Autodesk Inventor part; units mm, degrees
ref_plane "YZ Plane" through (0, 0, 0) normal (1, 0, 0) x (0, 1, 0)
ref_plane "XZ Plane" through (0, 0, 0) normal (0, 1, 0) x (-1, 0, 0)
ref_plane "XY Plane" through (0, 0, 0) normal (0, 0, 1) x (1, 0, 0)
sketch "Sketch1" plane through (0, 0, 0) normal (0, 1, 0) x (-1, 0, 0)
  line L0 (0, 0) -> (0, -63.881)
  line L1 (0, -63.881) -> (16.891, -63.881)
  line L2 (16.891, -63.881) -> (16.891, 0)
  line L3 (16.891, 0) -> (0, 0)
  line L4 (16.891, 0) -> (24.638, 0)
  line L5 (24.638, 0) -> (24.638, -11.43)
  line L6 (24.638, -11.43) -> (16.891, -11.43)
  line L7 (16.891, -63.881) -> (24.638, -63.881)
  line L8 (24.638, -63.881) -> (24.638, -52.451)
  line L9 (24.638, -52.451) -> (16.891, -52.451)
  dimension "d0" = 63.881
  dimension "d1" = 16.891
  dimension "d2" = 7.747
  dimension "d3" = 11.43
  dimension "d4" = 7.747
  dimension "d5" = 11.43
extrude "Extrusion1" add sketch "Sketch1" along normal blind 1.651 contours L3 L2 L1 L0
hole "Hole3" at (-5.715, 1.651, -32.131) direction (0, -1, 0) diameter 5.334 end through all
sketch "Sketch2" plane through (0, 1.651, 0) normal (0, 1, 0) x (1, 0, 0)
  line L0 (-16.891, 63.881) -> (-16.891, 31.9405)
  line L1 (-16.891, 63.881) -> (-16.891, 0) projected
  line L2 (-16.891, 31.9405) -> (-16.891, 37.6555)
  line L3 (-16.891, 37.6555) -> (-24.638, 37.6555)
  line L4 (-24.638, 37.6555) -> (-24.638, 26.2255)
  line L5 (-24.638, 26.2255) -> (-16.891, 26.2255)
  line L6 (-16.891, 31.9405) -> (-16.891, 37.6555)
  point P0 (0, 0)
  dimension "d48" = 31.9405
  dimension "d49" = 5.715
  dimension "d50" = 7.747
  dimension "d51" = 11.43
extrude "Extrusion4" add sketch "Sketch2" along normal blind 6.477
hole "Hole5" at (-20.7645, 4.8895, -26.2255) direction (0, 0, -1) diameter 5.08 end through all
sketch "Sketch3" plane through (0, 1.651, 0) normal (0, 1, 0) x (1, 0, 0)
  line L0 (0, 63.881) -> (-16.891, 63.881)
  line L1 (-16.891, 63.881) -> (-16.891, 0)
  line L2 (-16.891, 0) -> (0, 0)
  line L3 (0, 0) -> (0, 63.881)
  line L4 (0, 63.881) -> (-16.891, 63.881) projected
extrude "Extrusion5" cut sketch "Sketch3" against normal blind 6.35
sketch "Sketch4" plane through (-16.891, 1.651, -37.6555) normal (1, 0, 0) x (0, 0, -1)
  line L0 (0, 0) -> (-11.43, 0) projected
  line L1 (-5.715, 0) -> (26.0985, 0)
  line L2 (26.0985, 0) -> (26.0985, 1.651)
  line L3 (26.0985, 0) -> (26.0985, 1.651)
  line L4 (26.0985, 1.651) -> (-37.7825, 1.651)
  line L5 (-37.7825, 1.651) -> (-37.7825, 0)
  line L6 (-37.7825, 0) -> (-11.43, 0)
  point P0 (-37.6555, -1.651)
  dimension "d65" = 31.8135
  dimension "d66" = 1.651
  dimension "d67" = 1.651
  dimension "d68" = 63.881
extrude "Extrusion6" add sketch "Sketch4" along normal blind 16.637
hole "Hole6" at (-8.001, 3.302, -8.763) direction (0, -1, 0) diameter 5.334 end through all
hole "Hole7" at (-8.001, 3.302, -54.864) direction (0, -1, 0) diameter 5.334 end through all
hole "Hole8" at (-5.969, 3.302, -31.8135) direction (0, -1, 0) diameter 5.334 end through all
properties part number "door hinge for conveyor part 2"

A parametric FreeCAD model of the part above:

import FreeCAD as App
import Part
import Sketcher

V = App.Vector
Q = App.Units.Quantity

doc = App.newDocument("Part")
body = doc.addObject("PartDesign::Body", "Body")
body.AllowCompound = True

# Sketch on XZ plane
sketch1 = doc.addObject("Sketcher::SketchObject", "Sketch")
body.addObject(sketch1)
sketch1.AttachmentSupport = (doc.XZ_Plane, [""])
sketch1.MapMode = "FlatFace"
sketch1.addGeometry([
    Part.LineSegment(V(-17, 0, 0), V(0, 0, 0)),
    Part.LineSegment(V(0, 0, 0), V(0, -64, 0)),
    Part.LineSegment(V(0, -64, 0), V(-17, -64, 0)),
    Part.LineSegment(V(-17, -64, 0), V(-17, 0, 0)),
], False)
sketch1.addConstraint([
    Sketcher.Constraint("Coincident", 0, 2, 1, 1),
    Sketcher.Constraint("Coincident", 1, 2, 2, 1),
    Sketcher.Constraint("Coincident", 2, 2, 3, 1),
    Sketcher.Constraint("Coincident", 3, 2, 0, 1),
    Sketcher.Constraint("Horizontal", 0),
    Sketcher.Constraint("Vertical", 1),
    Sketcher.Constraint("Horizontal", 2),
    Sketcher.Constraint("Vertical", 3),
    Sketcher.Constraint("Coincident", 0, 2, -1, 1),
    Sketcher.Constraint("DistanceX", 0, 1, 0, 2, Q("0.665 in")),
    Sketcher.Constraint("DistanceY", 1, 2, 1, 1, Q("2.515 in")),
])
pad1 = doc.addObject("PartDesign::Pad", "Pad")
body.addObject(pad1)
pad1.Profile = sketch1
pad1.Length = Q("0.065 in")
pad1.Reversed = True

# Sketch on XZ plane
sketch2 = doc.addObject("Sketcher::SketchObject", "Sketch001")
body.addObject(sketch2)
sketch2.AttachmentSupport = (doc.XZ_Plane, [""])
sketch2.MapMode = "FlatFace"
sketch2.AttachmentOffset = App.Placement(V(0, 0, -0.065 * 25.4), App.Rotation())
sketch2.addGeometry(Part.Circle(V(-5.7, -32.1, 0), V(0, 0, 1), 2.7), False)
sketch2.addConstraint([
    Sketcher.Constraint("Diameter", 0, Q("0.21 in")),
    Sketcher.Constraint("DistanceX", 0, 3, -1, 1, Q("0.225 in")),
    Sketcher.Constraint("DistanceY", 0, 3, -1, 1, Q("1.265 in")),
])
doc.recompute()
hole = doc.addObject("PartDesign::Hole", "Hole")
body.addObject(hole)
hole.Profile = sketch2
hole.ThreadType = "None"
hole.Diameter = Q("0.21 in")
hole.DepthType = "ThroughAll"
hole.Reversed = True

# Sketch on XZ plane
sketch3 = doc.addObject("Sketcher::SketchObject", "Sketch002")
body.addObject(sketch3)
sketch3.AttachmentSupport = (doc.XZ_Plane, [""])
sketch3.MapMode = "FlatFace"
sketch3.AttachmentOffset = App.Placement(V(0, 0, -0.065 * 25.4), App.Rotation())
sketch3.addGeometry([
    Part.LineSegment(V(-17, -26, 0), V(-17, -38, 0)),
    Part.LineSegment(V(-17, -38, 0), V(-25, -38, 0)),
    Part.LineSegment(V(-25, -38, 0), V(-25, -26, 0)),
    Part.LineSegment(V(-25, -26, 0), V(-17, -26, 0)),
], False)
sketch3.addConstraint([
    Sketcher.Constraint("Coincident", 0, 2, 1, 1),
    Sketcher.Constraint("Coincident", 1, 2, 2, 1),
    Sketcher.Constraint("Coincident", 2, 2, 3, 1),
    Sketcher.Constraint("Coincident", 3, 2, 0, 1),
    Sketcher.Constraint("Vertical", 0),
    Sketcher.Constraint("Horizontal", 1),
    Sketcher.Constraint("Vertical", 2),
    Sketcher.Constraint("Horizontal", 3),
    Sketcher.Constraint("DistanceY", 0, 2, 0, 1, Q("0.45 in")),
    Sketcher.Constraint("DistanceX", 1, 2, 1, 1, Q("0.305 in")),
    Sketcher.Constraint("DistanceX", 1, 2, -1, 1, Q("0.97 in")),
    Sketcher.Constraint("DistanceY", 0, 2, -1, 1, Q("1.4825 in")),
])
pad2 = doc.addObject("PartDesign::Pad", "Pad001")
body.addObject(pad2)
pad2.Profile = sketch3
pad2.Length = Q("0.255 in")
pad2.Reversed = True

# Sketch on XY plane
sketch4 = doc.addObject("Sketcher::SketchObject", "Sketch003")
body.addObject(sketch4)
sketch4.AttachmentSupport = (doc.XY_Plane, [""])
sketch4.MapMode = "FlatFace"
sketch4.AttachmentOffset = App.Placement(V(0, 0, -1.0325 * 25.4), App.Rotation())
sketch4.addGeometry(Part.Circle(V(-20.8, 4.9, 0), V(0, 0, 1), 2.5), False)
sketch4.addConstraint([
    Sketcher.Constraint("Diameter", 0, Q("0.2 in")),
    Sketcher.Constraint("DistanceX", 0, 3, -1, 1, Q("0.8175 in")),
    Sketcher.Constraint("DistanceY", -1, 1, 0, 3, Q("0.1925 in")),
])
doc.recompute()
hole2 = doc.addObject("PartDesign::Hole", "Hole001")
body.addObject(hole2)
hole2.Profile = sketch4
hole2.ThreadType = "None"
hole2.Diameter = Q("0.2 in")
hole2.DepthType = "ThroughAll"

# Sketch on XZ plane
sketch5 = doc.addObject("Sketcher::SketchObject", "Sketch004")
body.addObject(sketch5)
sketch5.AttachmentSupport = (doc.XZ_Plane, [""])
sketch5.MapMode = "FlatFace"
sketch5.AttachmentOffset = App.Placement(V(0, 0, -0.065 * 25.4), App.Rotation())
sketch5.addGeometry([
    Part.LineSegment(V(0, 0, 0), V(0, -64, 0)),
    Part.LineSegment(V(0, -64, 0), V(-17, -64, 0)),
    Part.LineSegment(V(-17, -64, 0), V(-17, 0, 0)),
    Part.LineSegment(V(-17, 0, 0), V(0, 0, 0)),
], False)
sketch5.addConstraint([
    Sketcher.Constraint("Coincident", 0, 2, 1, 1),
    Sketcher.Constraint("Coincident", 1, 2, 2, 1),
    Sketcher.Constraint("Coincident", 2, 2, 3, 1),
    Sketcher.Constraint("Coincident", 3, 2, 0, 1),
    Sketcher.Constraint("Vertical", 0),
    Sketcher.Constraint("Horizontal", 1),
    Sketcher.Constraint("Vertical", 2),
    Sketcher.Constraint("Horizontal", 3),
    Sketcher.Constraint("Coincident", 3, 2, -1, 1),
    Sketcher.Constraint("DistanceX", 1, 2, 1, 1, Q("0.665 in")),
    Sketcher.Constraint("DistanceY", 0, 2, 0, 1, Q("2.515 in")),
])
pocket1 = doc.addObject("PartDesign::Pocket", "Pocket")
body.addObject(pocket1)
pocket1.Profile = sketch5
pocket1.Length = Q("0.25 in")
pocket1.Reversed = True

# Sketch on YZ plane
sketch6 = doc.addObject("Sketcher::SketchObject", "Sketch005")
body.addObject(sketch6)
sketch6.AttachmentSupport = (doc.YZ_Plane, [""])
sketch6.MapMode = "FlatFace"
sketch6.AttachmentOffset = App.Placement(V(0, 0, -0.665 * 25.4), App.Rotation())
sketch6.addGeometry([
    Part.LineSegment(V(1.7, 0.1, 0), V(1.7, -63.8, 0)),
    Part.LineSegment(V(1.7, -63.8, 0), V(3.3, -63.8, 0)),
    Part.LineSegment(V(3.3, -63.8, 0), V(3.3, 0.1, 0)),
    Part.LineSegment(V(3.3, 0.1, 0), V(1.7, 0.1, 0)),
], False)
sketch6.addConstraint([
    Sketcher.Constraint("Coincident", 0, 2, 1, 1),
    Sketcher.Constraint("Coincident", 1, 2, 2, 1),
    Sketcher.Constraint("Coincident", 2, 2, 3, 1),
    Sketcher.Constraint("Coincident", 3, 2, 0, 1),
    Sketcher.Constraint("Vertical", 0),
    Sketcher.Constraint("Horizontal", 1),
    Sketcher.Constraint("Vertical", 2),
    Sketcher.Constraint("Horizontal", 3),
    Sketcher.Constraint("DistanceX", 1, 1, 1, 2, Q("0.065 in")),
    Sketcher.Constraint("DistanceY", 0, 2, 0, 1, Q("2.515 in")),
    Sketcher.Constraint("DistanceX", -1, 1, 0, 2, Q("0.065 in")),
    Sketcher.Constraint("DistanceY", 0, 2, -1, 1, Q("2.51 in")),
])
pad3 = doc.addObject("PartDesign::Pad", "Pad002")
body.addObject(pad3)
pad3.Profile = sketch6
pad3.Length = Q("0.655 in")

# Sketch on XZ plane
sketch7 = doc.addObject("Sketcher::SketchObject", "Sketch006")
body.addObject(sketch7)
sketch7.AttachmentSupport = (doc.XZ_Plane, [""])
sketch7.MapMode = "FlatFace"
sketch7.AttachmentOffset = App.Placement(V(0, 0, -0.13 * 25.4), App.Rotation())
sketch7.addGeometry(Part.Circle(V(-8, -8.8, 0), V(0, 0, 1), 2.7), False)
sketch7.addConstraint([
    Sketcher.Constraint("Diameter", 0, Q("0.21 in")),
    Sketcher.Constraint("DistanceX", 0, 3, -1, 1, Q("0.315 in")),
    Sketcher.Constraint("DistanceY", 0, 3, -1, 1, Q("0.345 in")),
])
doc.recompute()
hole3 = doc.addObject("PartDesign::Hole", "Hole002")
body.addObject(hole3)
hole3.Profile = sketch7
hole3.ThreadType = "None"
hole3.Diameter = Q("0.21 in")
hole3.DepthType = "ThroughAll"
hole3.Reversed = True

# Sketch on XZ plane
sketch8 = doc.addObject("Sketcher::SketchObject", "Sketch007")
body.addObject(sketch8)
sketch8.AttachmentSupport = (doc.XZ_Plane, [""])
sketch8.MapMode = "FlatFace"
sketch8.AttachmentOffset = App.Placement(V(0, 0, -0.13 * 25.4), App.Rotation())
sketch8.addGeometry(Part.Circle(V(-8, -54.9, 0), V(0, 0, 1), 2.7), False)
sketch8.addConstraint([
    Sketcher.Constraint("Diameter", 0, Q("0.21 in")),
    Sketcher.Constraint("DistanceY", 0, 3, -1, 1, Q("2.16 in")),
    Sketcher.Constraint("DistanceX", 0, 3, -1, 1, Q("0.315 in")),
])
doc.recompute()
hole4 = doc.addObject("PartDesign::Hole", "Hole003")
body.addObject(hole4)
hole4.Profile = sketch8
hole4.ThreadType = "None"
hole4.Diameter = Q("0.21 in")
hole4.DepthType = "ThroughAll"
hole4.Reversed = True

# Sketch on XZ plane
sketch9 = doc.addObject("Sketcher::SketchObject", "Sketch008")
body.addObject(sketch9)
sketch9.AttachmentSupport = (doc.XZ_Plane, [""])
sketch9.MapMode = "FlatFace"
sketch9.AttachmentOffset = App.Placement(V(0, 0, -0.13 * 25.4), App.Rotation())
sketch9.addGeometry(Part.Circle(V(-6, -31.8, 0), V(0, 0, 1), 2.7), False)
sketch9.addConstraint([
    Sketcher.Constraint("Diameter", 0, Q("0.21 in")),
    Sketcher.Constraint("DistanceX", 0, 3, -1, 1, Q("0.235 in")),
    Sketcher.Constraint("DistanceY", 0, 3, -1, 1, Q("1.2525 in")),
])
doc.recompute()
hole5 = doc.addObject("PartDesign::Hole", "Hole004")
body.addObject(hole5)
hole5.Profile = sketch9
hole5.ThreadType = "None"
hole5.Diameter = Q("0.21 in")
hole5.DepthType = "ThroughAll"
hole5.Reversed = True

doc.recompute()
